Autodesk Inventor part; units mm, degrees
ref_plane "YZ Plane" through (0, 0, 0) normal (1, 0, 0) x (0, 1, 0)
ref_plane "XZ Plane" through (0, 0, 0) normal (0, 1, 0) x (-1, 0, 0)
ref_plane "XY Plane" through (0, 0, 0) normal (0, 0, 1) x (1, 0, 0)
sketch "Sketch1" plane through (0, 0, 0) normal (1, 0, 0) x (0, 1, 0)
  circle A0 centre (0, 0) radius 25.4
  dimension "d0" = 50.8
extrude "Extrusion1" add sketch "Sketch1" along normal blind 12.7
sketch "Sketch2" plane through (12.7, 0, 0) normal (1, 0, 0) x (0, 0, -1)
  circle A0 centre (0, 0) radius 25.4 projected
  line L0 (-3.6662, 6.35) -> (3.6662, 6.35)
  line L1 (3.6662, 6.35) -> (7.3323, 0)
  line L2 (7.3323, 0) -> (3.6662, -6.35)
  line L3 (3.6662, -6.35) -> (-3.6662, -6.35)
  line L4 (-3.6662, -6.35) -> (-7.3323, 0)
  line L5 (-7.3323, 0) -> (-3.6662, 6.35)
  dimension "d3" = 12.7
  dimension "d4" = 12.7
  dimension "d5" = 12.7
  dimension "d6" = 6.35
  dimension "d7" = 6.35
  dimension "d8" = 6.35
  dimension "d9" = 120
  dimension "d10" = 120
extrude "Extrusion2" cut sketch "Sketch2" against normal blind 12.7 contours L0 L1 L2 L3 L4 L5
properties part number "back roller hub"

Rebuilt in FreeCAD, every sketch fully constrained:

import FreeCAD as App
import Part
import Sketcher
from FreeCAD import Vector
Q = App.Units.Quantity

doc = App.newDocument("Part")
body = doc.addObject("PartDesign::Body", "Body")

# Sketch on YZ plane
sketch1 = body.newObject("Sketcher::SketchObject", "Sketch")
sketch1.AttachmentSupport = (doc.getObject("YZ_Plane"), [""])
sketch1.MapMode = "FlatFace"
sketch1.addGeometry(Part.Circle(Vector(0, 0, 0), Vector(0, 0, 1), 25), False)
sketch1.addConstraint(Sketcher.Constraint("Coincident", 0, 3, -1, 1))
sketch1.addConstraint(Sketcher.Constraint("Diameter", 0, Q("2 in")))
pad1 = body.newObject("PartDesign::Pad", "Pad")
pad1.Profile = sketch1
pad1.Length = Q("0.5 in")

# Sketch on YZ plane
sketch2 = body.newObject("Sketcher::SketchObject", "Sketch001")
sketch2.AttachmentSupport = (doc.getObject("YZ_Plane"), [""])
sketch2.MapMode = "FlatFace"
sketch2.AttachmentOffset = App.Placement(Vector(0, 0, 0.5 * 25.4), App.Rotation())
sketch2.addGeometry(Part.LineSegment(Vector(6, -4, 0), Vector(6, 4, 0)), False)
sketch2.addGeometry(Part.LineSegment(Vector(6, 4, 0), Vector(0, 7, 0)), False)
sketch2.addGeometry(Part.LineSegment(Vector(0, 7, 0), Vector(-6, 4, 0)), False)
sketch2.addGeometry(Part.LineSegment(Vector(-6, 4, 0), Vector(-6, -4, 0)), False)
sketch2.addGeometry(Part.LineSegment(Vector(-6, -4, 0), Vector(0, -7, 0)), False)
sketch2.addGeometry(Part.LineSegment(Vector(0, -7, 0), Vector(6, -4, 0)), False)
sketch2.addConstraint(Sketcher.Constraint("Coincident", 0, 2, 1, 1))
sketch2.addConstraint(Sketcher.Constraint("Coincident", 1, 2, 2, 1))
sketch2.addConstraint(Sketcher.Constraint("Coincident", 2, 2, 3, 1))
sketch2.addConstraint(Sketcher.Constraint("Coincident", 3, 2, 4, 1))
sketch2.addConstraint(Sketcher.Constraint("Coincident", 4, 2, 5, 1))
sketch2.addConstraint(Sketcher.Constraint("Coincident", 5, 2, 0, 1))
sketch2.addConstraint(Sketcher.Constraint("Vertical", 0))
sketch2.addConstraint(Sketcher.Constraint("Vertical", 3))
sketch2.addConstraint(Sketcher.Constraint("Symmetric", 0, 2, 3, 2, -1, 1))
sketch2.addConstraint(Sketcher.Constraint("Symmetric", 1, 2, 4, 2, -1, 1))
sketch2.addConstraint(Sketcher.Constraint("PointOnObject", 1, 2, -2))
sketch2.addConstraint(Sketcher.Constraint("Parallel", 2, 5))
sketch2.addConstraint(Sketcher.Constraint("Horizontal", 0, 2, 2, 2))
sketch2.addConstraint(Sketcher.Constraint("DistanceX", 2, 2, 0, 2, Q("0.5 in")))
sketch2.addConstraint(Sketcher.Constraint("Angle", 1, Q("150.0005 deg")))
sketch2.addConstraint(Sketcher.Constraint("DistanceY", 3, 2, 1, 2, Q("0.433 in")))
pocket1 = body.newObject("PartDesign::Pocket", "Pocket")
pocket1.Profile = sketch2
pocket1.Length = Q("0.5 in")

doc.recompute()
